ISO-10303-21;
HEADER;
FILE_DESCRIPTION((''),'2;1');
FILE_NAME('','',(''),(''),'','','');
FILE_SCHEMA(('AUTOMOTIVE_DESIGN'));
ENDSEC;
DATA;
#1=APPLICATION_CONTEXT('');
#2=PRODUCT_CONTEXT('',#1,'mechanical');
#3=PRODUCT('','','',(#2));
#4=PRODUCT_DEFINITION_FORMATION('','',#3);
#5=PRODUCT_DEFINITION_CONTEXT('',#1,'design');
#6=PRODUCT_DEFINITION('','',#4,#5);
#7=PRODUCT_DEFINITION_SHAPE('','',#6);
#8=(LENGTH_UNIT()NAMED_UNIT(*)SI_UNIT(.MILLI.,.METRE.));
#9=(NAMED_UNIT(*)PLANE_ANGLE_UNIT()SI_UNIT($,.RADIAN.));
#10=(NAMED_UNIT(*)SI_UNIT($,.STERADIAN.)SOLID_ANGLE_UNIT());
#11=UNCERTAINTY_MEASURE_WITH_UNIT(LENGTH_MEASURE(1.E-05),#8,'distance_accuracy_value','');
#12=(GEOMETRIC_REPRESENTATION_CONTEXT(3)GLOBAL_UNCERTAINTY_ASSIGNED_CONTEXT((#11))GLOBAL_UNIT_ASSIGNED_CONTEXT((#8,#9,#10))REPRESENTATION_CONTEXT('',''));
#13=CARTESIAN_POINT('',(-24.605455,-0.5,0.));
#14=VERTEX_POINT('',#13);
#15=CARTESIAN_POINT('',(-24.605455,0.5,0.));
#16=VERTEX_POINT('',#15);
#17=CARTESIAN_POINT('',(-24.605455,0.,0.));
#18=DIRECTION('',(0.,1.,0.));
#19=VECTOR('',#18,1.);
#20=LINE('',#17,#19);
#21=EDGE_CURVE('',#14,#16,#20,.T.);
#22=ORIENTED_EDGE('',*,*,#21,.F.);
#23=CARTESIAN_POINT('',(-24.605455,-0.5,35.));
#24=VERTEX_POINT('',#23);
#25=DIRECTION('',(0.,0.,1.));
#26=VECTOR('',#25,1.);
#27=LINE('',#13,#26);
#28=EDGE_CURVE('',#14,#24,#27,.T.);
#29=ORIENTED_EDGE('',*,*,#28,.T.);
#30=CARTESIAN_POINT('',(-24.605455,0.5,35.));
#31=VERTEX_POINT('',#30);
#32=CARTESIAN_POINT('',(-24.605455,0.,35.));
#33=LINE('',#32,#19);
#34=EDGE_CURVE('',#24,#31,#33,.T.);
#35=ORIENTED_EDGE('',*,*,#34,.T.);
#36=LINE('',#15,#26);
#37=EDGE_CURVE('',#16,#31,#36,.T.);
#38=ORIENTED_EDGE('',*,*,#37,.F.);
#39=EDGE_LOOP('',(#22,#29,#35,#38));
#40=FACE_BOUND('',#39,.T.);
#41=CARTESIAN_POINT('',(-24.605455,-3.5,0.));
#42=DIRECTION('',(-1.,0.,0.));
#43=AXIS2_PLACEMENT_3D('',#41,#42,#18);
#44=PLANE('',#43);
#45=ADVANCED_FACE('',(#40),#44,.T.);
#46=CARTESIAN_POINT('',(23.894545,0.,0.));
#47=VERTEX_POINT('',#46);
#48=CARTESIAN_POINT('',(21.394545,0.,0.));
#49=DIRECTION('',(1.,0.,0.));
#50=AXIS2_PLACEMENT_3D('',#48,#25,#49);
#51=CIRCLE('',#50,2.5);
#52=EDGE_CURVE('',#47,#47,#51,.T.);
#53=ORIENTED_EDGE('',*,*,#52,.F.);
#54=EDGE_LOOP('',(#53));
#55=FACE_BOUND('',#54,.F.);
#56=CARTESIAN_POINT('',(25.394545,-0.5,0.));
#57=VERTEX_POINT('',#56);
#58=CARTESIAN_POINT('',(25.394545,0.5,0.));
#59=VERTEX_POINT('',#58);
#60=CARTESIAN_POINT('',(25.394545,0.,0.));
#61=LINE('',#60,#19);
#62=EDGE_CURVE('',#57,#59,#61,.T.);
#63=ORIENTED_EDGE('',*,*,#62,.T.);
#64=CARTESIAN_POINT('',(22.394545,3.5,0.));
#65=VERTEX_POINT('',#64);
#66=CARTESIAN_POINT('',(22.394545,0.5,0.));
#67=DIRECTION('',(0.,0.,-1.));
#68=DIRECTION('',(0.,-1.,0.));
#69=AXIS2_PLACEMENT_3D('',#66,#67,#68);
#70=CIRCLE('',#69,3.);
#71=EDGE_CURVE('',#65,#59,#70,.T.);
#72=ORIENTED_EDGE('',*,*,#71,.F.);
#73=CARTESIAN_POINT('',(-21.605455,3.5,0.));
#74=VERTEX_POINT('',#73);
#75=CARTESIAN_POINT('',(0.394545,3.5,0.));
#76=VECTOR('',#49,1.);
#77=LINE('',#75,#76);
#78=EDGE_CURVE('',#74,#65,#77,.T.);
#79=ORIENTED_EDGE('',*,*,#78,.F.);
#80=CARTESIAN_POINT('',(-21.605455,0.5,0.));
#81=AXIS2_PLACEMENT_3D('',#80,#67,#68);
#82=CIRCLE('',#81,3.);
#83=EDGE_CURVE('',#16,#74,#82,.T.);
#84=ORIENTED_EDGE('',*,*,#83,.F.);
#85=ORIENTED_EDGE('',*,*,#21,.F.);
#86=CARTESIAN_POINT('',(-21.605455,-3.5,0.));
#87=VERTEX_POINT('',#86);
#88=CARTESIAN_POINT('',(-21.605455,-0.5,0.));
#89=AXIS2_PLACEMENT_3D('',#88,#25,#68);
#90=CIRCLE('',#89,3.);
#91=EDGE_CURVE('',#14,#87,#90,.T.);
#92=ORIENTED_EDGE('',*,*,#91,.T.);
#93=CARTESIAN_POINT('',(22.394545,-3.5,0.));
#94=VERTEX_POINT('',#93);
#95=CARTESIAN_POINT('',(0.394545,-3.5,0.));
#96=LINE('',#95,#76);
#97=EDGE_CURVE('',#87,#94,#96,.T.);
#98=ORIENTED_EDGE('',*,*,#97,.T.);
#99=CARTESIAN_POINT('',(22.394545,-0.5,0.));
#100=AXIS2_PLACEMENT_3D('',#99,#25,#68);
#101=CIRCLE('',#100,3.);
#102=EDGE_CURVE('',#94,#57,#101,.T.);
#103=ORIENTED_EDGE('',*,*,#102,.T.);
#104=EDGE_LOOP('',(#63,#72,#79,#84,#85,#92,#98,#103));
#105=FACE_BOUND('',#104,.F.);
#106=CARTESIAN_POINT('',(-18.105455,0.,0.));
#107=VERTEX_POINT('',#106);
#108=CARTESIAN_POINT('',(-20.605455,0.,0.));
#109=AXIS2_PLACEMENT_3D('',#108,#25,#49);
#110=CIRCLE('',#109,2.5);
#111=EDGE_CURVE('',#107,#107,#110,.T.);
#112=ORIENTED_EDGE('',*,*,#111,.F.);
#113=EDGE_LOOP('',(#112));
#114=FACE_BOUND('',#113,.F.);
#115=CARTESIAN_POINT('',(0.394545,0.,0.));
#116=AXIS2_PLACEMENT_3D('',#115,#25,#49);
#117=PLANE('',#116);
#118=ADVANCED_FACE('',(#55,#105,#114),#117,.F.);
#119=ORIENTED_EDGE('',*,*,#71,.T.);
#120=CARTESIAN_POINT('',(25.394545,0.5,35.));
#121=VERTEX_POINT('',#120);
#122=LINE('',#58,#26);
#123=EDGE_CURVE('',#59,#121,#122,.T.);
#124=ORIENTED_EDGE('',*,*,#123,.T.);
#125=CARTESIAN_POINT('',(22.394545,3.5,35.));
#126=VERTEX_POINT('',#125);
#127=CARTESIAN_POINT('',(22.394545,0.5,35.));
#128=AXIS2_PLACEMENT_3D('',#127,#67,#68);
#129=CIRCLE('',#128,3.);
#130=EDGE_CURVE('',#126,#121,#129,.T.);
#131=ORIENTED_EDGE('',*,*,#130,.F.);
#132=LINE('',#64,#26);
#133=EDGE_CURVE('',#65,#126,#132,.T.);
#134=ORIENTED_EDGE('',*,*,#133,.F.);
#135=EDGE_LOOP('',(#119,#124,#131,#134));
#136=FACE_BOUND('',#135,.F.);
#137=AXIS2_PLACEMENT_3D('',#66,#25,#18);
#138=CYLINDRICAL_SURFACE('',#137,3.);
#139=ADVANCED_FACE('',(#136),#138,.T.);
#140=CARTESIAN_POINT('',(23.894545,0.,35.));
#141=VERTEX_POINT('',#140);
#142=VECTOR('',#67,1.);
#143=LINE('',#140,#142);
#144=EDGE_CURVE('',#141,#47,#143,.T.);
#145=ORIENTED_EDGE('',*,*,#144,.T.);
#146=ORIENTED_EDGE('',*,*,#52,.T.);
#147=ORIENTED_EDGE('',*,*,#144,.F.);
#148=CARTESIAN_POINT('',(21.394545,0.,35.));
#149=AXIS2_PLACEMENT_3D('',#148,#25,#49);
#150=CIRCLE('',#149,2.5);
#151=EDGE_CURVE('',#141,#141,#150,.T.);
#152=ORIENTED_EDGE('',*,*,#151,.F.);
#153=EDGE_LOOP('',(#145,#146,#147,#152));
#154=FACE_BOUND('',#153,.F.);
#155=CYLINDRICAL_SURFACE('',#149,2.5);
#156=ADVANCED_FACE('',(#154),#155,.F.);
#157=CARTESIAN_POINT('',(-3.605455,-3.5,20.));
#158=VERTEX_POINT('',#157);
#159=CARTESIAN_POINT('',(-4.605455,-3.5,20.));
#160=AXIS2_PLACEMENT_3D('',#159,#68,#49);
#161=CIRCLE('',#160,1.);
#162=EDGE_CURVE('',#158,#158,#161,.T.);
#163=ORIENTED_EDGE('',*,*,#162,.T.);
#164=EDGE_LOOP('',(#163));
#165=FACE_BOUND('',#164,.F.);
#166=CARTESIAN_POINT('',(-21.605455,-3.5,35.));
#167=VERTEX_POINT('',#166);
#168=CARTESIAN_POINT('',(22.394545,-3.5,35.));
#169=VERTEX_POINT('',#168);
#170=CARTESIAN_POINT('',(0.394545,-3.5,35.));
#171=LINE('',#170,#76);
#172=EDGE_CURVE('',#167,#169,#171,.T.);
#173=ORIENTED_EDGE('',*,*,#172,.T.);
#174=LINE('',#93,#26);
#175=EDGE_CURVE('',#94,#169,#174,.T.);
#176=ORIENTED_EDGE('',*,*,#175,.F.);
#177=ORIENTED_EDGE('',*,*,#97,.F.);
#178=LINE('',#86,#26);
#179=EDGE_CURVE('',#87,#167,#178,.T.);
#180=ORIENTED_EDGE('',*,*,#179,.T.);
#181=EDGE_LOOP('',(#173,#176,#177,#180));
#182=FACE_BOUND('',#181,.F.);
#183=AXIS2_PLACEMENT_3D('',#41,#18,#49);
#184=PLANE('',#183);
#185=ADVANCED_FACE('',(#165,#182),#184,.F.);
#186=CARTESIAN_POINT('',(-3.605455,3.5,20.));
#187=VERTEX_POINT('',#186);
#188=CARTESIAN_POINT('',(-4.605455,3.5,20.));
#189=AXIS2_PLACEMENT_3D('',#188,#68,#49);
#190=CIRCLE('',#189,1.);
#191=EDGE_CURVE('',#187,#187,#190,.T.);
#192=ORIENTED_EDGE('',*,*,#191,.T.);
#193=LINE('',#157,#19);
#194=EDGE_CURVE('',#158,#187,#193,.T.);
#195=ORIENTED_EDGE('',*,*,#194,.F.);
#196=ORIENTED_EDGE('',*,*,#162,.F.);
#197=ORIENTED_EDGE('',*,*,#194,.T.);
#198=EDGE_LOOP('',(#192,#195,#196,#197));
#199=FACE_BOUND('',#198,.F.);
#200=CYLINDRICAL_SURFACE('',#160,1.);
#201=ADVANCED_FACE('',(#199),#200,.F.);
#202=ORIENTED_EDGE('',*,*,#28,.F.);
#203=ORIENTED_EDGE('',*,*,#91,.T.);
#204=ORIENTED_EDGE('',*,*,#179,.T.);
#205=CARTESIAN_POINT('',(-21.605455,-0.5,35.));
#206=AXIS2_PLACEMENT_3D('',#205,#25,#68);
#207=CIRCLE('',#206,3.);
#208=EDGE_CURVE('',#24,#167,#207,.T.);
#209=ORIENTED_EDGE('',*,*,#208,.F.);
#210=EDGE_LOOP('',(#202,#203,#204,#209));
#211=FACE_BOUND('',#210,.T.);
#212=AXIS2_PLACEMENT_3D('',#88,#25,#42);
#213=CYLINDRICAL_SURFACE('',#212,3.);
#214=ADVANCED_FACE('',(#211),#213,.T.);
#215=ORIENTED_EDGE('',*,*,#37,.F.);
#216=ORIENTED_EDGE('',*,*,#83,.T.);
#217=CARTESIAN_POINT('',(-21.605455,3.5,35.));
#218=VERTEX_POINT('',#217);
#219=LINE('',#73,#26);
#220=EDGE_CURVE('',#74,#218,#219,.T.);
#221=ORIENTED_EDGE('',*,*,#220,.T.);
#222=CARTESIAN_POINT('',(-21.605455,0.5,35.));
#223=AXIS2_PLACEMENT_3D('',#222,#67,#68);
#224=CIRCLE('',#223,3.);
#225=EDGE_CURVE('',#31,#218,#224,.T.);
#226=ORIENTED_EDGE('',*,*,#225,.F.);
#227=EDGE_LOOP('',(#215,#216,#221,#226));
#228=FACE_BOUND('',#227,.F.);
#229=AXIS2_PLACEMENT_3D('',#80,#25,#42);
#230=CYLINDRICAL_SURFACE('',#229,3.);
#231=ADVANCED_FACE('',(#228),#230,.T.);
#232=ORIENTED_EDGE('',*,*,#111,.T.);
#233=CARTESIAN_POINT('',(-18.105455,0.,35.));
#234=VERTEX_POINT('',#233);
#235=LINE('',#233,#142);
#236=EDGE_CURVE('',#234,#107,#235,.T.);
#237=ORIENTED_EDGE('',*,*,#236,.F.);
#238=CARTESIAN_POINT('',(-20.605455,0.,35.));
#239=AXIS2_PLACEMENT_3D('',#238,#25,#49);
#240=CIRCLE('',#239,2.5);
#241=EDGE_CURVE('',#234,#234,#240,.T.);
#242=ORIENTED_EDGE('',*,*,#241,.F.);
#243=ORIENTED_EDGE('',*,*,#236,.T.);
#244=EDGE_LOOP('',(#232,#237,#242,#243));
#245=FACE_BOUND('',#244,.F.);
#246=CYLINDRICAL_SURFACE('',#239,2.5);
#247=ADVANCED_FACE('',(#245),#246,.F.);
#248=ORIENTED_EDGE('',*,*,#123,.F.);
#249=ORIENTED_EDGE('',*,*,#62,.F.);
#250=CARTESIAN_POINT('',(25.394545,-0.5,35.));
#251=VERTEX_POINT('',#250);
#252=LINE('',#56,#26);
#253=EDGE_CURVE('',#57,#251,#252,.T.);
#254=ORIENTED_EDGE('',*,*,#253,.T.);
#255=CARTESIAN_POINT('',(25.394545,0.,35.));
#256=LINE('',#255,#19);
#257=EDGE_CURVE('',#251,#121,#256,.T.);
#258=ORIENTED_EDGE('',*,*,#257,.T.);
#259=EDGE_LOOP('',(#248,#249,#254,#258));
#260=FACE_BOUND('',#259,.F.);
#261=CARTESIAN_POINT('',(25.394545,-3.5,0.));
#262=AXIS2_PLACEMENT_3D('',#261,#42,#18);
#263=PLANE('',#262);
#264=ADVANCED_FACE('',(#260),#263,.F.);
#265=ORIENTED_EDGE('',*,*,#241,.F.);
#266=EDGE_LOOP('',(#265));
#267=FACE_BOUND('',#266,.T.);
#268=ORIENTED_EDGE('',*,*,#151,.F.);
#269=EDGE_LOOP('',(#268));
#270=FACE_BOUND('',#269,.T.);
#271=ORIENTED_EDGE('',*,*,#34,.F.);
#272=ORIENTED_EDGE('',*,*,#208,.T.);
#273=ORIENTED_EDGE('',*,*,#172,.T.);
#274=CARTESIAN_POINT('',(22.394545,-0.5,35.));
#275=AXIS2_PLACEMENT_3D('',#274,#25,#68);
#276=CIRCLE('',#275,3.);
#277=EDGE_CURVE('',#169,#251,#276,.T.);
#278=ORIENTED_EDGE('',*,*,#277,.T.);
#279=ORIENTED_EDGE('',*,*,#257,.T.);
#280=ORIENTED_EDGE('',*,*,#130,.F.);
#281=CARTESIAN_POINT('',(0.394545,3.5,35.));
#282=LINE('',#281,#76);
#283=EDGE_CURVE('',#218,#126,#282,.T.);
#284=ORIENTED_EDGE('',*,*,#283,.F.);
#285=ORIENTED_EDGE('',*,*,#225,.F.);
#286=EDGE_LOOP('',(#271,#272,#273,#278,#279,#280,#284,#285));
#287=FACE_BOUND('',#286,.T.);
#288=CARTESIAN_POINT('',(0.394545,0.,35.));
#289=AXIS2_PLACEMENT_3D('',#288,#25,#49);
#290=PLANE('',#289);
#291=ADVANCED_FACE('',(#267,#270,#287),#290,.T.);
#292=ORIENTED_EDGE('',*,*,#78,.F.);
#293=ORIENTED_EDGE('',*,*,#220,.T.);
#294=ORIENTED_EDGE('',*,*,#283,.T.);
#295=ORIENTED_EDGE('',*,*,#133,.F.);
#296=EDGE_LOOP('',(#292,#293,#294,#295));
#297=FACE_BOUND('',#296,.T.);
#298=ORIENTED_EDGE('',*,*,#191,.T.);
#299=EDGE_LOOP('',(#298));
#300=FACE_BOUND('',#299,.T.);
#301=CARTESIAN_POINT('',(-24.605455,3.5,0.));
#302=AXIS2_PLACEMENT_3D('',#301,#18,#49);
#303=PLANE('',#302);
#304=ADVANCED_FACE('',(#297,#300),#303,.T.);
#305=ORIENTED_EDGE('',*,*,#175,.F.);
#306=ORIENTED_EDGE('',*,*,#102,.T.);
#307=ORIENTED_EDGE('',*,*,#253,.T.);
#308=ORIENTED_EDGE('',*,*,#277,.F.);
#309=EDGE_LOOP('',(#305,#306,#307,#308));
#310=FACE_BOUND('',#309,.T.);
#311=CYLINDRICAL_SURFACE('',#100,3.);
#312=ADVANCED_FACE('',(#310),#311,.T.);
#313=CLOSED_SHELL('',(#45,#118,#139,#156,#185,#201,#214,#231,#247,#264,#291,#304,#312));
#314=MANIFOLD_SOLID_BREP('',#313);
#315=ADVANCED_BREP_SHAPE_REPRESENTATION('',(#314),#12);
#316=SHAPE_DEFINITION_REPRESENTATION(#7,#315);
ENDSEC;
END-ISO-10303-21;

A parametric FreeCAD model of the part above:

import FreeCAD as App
import Part
import Sketcher
from FreeCAD import Vector
Q = App.Units.Quantity


def edges_at(feature, points):
    """Names of the edges that pass closest to the given points."""
    edges = feature.Shape.Edges
    near = lambda p: min(range(len(edges)), key=lambda i: edges[i].distToShape(Part.Vertex(*p))[0])
    return sorted({f"Edge{near(p) + 1}" for p in points})


def add_polygon(sketch, points):
    """Adds a closed chain of lines whose ends are joined by coincident constraints."""
    first, n = sketch.GeometryCount, len(points)
    for a, b in zip(points, points[1:] + points[:1]):
        sketch.addGeometry(Part.LineSegment(App.Vector(*a, 0), App.Vector(*b, 0)), False)
    for i in range(n):
        sketch.addConstraint(Sketcher.Constraint("Coincident", first + i, 2, first + (i + 1) % n, 1))

doc = App.newDocument("Part")
params = doc.addObject("Spreadsheet::Sheet", "Params")
for row, (alias, value) in enumerate([
    ("sketch1_width", "50 mm"),
    ("sketch1_height", "7 mm"),
    ("pad1_length", "35 mm"),
    ("sketch2_diameter", "5 mm"),
    ("fillet_radius", "3 mm"),
    ("sketch3_diameter", "2 mm"),
    ("pocket2_length", "25 mm"),
], start=1):
    params.set(f"A{row}", alias)
    params.set(f"B{row}", "=" + value)
    params.setAlias(f"B{row}", alias)

body = doc.addObject("PartDesign::Body", "Body")

# Sketch on XY plane
sketch1 = doc.addObject("Sketcher::SketchObject", "Sketch")
body.addObject(sketch1)
sketch1.AttachmentSupport = (doc.XY_Plane, [""])
sketch1.MapMode = "FlatFace"
add_polygon(sketch1, [(-25, 4), (-25, -4), (25, -4), (25, 4)])  # lines 0-3
sketch1.addConstraint([
    Sketcher.Constraint("Vertical", 0),
    Sketcher.Constraint("Horizontal", 1),
    Sketcher.Constraint("Vertical", 2),
    Sketcher.Constraint("Horizontal", 3),
    Sketcher.Constraint("DistanceX", 1, 1, 1, 2, Q("50 mm")),
    Sketcher.Constraint("DistanceY", 0, 2, 0, 1, Q("7 mm")),
    Sketcher.Constraint("DistanceY", 0, 2, -1, 1, Q("3.5 mm")),
    Sketcher.Constraint("DistanceX", 0, 2, -1, 1, Q("24.605455 mm")),
])
sketch1.setExpression("Constraints[8]", "Params.sketch1_width")
sketch1.setExpression("Constraints[9]", "Params.sketch1_height")
pad1 = doc.addObject("PartDesign::Pad", "Pad")
body.addObject(pad1)
pad1.Profile = sketch1
pad1.setExpression("Length", "Params.pad1_length")

# Sketch on XY plane
sketch2 = doc.addObject("Sketcher::SketchObject", "Sketch001")
body.addObject(sketch2)
sketch2.AttachmentSupport = (doc.XY_Plane, [""])
sketch2.MapMode = "FlatFace"
sketch2.AttachmentOffset = App.Placement(Vector(0, 0, 35), App.Rotation())
sketch2.addGeometry([
    Part.Circle(Vector(-20.6, 0, 0), Vector(0, 0, 1), 2.5),
    Part.Circle(Vector(21.4, 0, 0), Vector(0, 0, 1), 2.5),
], False)
sketch2.addConstraint([
    Sketcher.Constraint("Equal", 0, 1),
    Sketcher.Constraint("PointOnObject", 0, 3, -1),
    Sketcher.Constraint("PointOnObject", 1, 3, -1),
    Sketcher.Constraint("Diameter", 0, Q("5 mm")),
    Sketcher.Constraint("DistanceX", 0, 3, 1, 3, Q("42 mm")),
    Sketcher.Constraint("DistanceX", 0, 3, -1, 1, Q("20.605455 mm")),
])
sketch2.setExpression("Constraints[3]", "Params.sketch2_diameter")
pocket1 = doc.addObject("PartDesign::Pocket", "Pocket")
body.addObject(pocket1)
pocket1.Profile = sketch2
pocket1.Type = "ThroughAll"
doc.recompute()

fillet = doc.addObject("PartDesign::Fillet", "Fillet")
body.addObject(fillet)
fillet.Base = (pocket1, edges_at(pocket1, [
    (25.395, -3.5, 17.5),
    (25.395, 3.5, 17.5),
    (-24.605, -3.5, 17.5),
    (-24.605, 3.5, 17.5),
]))
fillet.setExpression("Radius", "Params.fillet_radius")

# Sketch on XZ plane
sketch3 = doc.addObject("Sketcher::SketchObject", "Sketch002")
body.addObject(sketch3)
sketch3.AttachmentSupport = (doc.XZ_Plane, [""])
sketch3.MapMode = "FlatFace"
sketch3.AttachmentOffset = App.Placement(Vector(0, 0, 3.5), App.Rotation())
sketch3.addGeometry(Part.Circle(Vector(-4.6, 20, 0), Vector(0, 0, 1), 1), False)
sketch3.addConstraint([
    Sketcher.Constraint("Diameter", 0, Q("2 mm")),
    Sketcher.Constraint("DistanceY", -1, 1, 0, 3, Q("20 mm")),
    Sketcher.Constraint("DistanceX", 0, 3, -1, 1, Q("4.605455 mm")),
])
sketch3.setExpression("Constraints[0]", "Params.sketch3_diameter")
pocket2 = doc.addObject("PartDesign::Pocket", "Pocket001")
body.addObject(pocket2)
pocket2.Profile = sketch3
pocket2.setExpression("Length", "Params.pocket2_length")

doc.recompute()
